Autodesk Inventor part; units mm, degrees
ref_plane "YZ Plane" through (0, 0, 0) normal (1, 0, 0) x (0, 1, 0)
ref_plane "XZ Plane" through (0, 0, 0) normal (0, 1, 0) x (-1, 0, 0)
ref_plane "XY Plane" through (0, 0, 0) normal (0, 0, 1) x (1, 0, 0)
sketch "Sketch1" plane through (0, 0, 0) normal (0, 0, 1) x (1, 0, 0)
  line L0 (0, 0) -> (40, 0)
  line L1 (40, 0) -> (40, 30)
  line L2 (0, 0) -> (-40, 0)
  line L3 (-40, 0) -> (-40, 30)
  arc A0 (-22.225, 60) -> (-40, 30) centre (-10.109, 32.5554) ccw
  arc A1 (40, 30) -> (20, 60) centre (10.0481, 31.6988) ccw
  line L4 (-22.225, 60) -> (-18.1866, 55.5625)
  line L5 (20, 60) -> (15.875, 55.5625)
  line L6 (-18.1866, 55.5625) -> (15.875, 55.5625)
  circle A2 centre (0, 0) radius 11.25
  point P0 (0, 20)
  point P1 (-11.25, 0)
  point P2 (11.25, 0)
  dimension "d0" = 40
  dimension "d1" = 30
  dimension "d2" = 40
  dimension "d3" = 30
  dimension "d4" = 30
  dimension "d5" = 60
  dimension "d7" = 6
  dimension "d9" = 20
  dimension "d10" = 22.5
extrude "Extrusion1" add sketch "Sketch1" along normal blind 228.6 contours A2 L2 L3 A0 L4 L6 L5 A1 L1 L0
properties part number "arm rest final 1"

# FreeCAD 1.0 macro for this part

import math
import FreeCAD as App
import Part
import Sketcher
from FreeCAD import Vector
Q = App.Units.Quantity

doc = App.newDocument("Part")
body = doc.addObject("PartDesign::Body", "Body")

sketch1 = body.newObject("Sketcher::SketchObject", "Sketch")
sketch1.AttachmentSupport = (doc.getObject("XY_Plane"), [""])
sketch1.MapMode = "FlatFace"
sketch1.addGeometry([
    Part.ArcOfCircle(Part.Circle(Vector(0, 0, 0), Vector(0, 0, 1), 11), math.radians(0), math.radians(180)),
    Part.LineSegment(Vector(11, 0, 0), Vector(40, 0, 0)),
    Part.LineSegment(Vector(40, 0, 0), Vector(40, 30, 0)),
    Part.ArcOfCircle(Part.Circle(Vector(10, 32, 0), Vector(0, 0, 1), 30), math.radians(-3), math.radians(71)),
    Part.LineSegment(Vector(20, 60, 0), Vector(16, 56, 0)),
    Part.LineSegment(Vector(16, 56, 0), Vector(-18, 56, 0)),
    Part.LineSegment(Vector(-18, 56, 0), Vector(-22, 60, 0)),
    Part.ArcOfCircle(Part.Circle(Vector(-10, 33, 0), Vector(0, 0, 1), 30), math.radians(114), math.radians(185)),
    Part.LineSegment(Vector(-40, 30, 0), Vector(-40, 0, 0)),
    Part.LineSegment(Vector(-40, 0, 0), Vector(-11, 0, 0)),
], False)
sketch1.addConstraint([
    Sketcher.Constraint("Coincident", 0, 1, 1, 1),
    Sketcher.Constraint("Coincident", 1, 2, 2, 1),
    Sketcher.Constraint("Coincident", 2, 2, 3, 1),
    Sketcher.Constraint("Coincident", 3, 2, 4, 1),
    Sketcher.Constraint("Coincident", 4, 2, 5, 1),
    Sketcher.Constraint("Coincident", 5, 2, 6, 1),
    Sketcher.Constraint("Coincident", 6, 2, 7, 1),
    Sketcher.Constraint("Coincident", 7, 2, 8, 1),
    Sketcher.Constraint("Coincident", 8, 2, 9, 1),
    Sketcher.Constraint("Coincident", 9, 2, 0, 2),
    Sketcher.Constraint("Horizontal", 1),
    Sketcher.Constraint("Vertical", 2),
    Sketcher.Constraint("Horizontal", 5),
    Sketcher.Constraint("Vertical", 8),
    Sketcher.Constraint("Horizontal", 9),
    Sketcher.Constraint("Coincident", 0, 3, -1, 1),
    Sketcher.Constraint("Equal", 3, 7),
    Sketcher.Constraint("Symmetric", 1, 2, 8, 2, -1, 1),
    Sketcher.Constraint("PointOnObject", 0, 1, -1),
    Sketcher.Constraint("Horizontal", 3, 2, 6, 2),
    Sketcher.Constraint("Horizontal", 2, 2, 7, 2),
    Sketcher.Constraint("Radius", 3, Q("30 mm")),
    Sketcher.Constraint("DistanceY", 2, 1, 2, 2, Q("30 mm")),
    Sketcher.Constraint("Radius", 0, Q("11.25 mm")),
    Sketcher.Constraint("Distance", 6, Q("6 mm")),
    Sketcher.Constraint("DistanceX", -1, 1, 1, 2, Q("40 mm")),
    Sketcher.Constraint("DistanceX", -1, 1, 3, 2, Q("20 mm")),
    Sketcher.Constraint("DistanceY", -1, 1, 3, 2, Q("60 mm")),
    Sketcher.Constraint("Angle", 4, Q("-132.9098 deg")),
    Sketcher.Constraint("DistanceX", 6, 2, 4, 2, Q("38.1 mm")),
    Sketcher.Constraint("DistanceX", 5, 2, 5, 1, Q("34.0616 mm")),
])
pad1 = body.newObject("PartDesign::Pad", "Pad")
pad1.Profile = sketch1
pad1.Length = 228.6

doc.recompute()
